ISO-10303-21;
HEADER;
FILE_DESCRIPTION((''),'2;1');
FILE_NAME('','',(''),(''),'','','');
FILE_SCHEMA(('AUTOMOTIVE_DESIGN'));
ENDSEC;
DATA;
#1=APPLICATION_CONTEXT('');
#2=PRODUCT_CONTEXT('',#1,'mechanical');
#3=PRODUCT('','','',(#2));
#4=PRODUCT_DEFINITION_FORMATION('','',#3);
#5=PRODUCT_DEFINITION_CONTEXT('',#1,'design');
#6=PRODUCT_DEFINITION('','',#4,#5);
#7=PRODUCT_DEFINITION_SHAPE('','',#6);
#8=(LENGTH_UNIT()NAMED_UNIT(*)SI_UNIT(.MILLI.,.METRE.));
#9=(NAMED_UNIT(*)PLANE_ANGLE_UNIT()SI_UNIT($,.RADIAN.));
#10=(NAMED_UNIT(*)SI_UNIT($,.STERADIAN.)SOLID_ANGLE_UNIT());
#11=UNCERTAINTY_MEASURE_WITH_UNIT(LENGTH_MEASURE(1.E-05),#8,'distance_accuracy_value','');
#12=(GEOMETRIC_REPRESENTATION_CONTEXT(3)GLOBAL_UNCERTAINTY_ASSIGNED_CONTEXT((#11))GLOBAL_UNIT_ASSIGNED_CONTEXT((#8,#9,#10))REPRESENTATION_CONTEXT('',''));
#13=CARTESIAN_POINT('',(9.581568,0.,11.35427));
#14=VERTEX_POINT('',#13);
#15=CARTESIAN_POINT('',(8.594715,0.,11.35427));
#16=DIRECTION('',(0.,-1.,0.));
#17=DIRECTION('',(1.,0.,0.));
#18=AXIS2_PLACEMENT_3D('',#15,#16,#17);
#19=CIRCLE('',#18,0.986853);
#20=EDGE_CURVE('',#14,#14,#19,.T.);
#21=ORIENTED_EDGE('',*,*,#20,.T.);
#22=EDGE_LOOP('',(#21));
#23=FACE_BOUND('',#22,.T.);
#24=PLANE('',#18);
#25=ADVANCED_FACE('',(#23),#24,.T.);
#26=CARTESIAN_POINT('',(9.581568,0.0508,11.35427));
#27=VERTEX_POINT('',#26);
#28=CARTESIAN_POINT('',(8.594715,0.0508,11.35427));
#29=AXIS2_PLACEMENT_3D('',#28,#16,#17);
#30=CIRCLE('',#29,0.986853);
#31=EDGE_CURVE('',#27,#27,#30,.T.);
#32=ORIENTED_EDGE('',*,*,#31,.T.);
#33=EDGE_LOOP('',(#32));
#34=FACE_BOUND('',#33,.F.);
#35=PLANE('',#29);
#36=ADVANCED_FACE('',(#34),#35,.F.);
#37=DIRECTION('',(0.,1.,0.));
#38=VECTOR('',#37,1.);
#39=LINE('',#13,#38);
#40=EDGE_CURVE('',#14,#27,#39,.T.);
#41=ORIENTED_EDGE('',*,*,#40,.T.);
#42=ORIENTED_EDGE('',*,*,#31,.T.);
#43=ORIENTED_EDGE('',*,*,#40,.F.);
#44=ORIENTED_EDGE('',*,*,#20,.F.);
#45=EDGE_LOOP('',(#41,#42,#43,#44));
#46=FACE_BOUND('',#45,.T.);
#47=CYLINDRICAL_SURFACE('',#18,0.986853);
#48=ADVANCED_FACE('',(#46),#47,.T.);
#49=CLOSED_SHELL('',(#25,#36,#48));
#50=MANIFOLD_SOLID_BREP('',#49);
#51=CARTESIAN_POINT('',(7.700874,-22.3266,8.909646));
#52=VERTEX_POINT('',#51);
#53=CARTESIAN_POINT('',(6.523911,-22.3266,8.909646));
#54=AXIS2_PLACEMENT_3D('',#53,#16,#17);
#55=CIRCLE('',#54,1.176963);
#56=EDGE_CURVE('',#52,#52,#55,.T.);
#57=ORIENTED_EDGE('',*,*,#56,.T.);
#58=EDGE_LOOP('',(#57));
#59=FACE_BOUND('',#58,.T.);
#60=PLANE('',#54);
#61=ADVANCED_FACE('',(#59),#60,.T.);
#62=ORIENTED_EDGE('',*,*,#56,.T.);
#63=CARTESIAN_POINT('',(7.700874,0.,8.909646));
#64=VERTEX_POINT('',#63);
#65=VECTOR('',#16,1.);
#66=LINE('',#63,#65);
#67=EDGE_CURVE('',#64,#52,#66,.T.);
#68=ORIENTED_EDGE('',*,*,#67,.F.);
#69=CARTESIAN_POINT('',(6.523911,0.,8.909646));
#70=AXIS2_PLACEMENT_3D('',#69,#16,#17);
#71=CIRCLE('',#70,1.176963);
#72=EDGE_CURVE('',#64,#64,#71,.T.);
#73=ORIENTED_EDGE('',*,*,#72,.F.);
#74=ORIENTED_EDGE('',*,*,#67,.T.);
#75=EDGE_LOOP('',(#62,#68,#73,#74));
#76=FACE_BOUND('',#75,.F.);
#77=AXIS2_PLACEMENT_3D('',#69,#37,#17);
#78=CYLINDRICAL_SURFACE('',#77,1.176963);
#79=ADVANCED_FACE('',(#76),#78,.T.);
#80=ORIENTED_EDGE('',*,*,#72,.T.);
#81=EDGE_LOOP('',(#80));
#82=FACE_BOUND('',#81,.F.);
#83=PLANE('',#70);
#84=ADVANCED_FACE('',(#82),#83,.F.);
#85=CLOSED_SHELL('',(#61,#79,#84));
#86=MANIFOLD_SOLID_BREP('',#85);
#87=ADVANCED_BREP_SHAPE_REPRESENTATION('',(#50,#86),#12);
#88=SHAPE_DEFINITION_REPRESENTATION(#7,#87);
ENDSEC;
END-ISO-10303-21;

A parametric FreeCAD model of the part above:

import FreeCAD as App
import Part
import Sketcher
from FreeCAD import Vector
Q = App.Units.Quantity

doc = App.newDocument("Part")
body = doc.addObject("PartDesign::Body", "Body")

# Sketch on XZ plane
sketch1 = body.newObject("Sketcher::SketchObject", "Sketch")
sketch1.AttachmentSupport = (doc.getObject("XZ_Plane"), [""])
sketch1.MapMode = "FlatFace"
sketch1.addGeometry(Part.Circle(Vector(6.5, 8.9, 0), Vector(0, 0, 1), 1.2), False)
sketch1.addConstraint(Sketcher.Constraint("Diameter", 0, 2.353926))
sketch1.addConstraint(Sketcher.Constraint("DistanceX", -1, 1, 0, 3, 6.523911))
sketch1.addConstraint(Sketcher.Constraint("DistanceY", -1, 1, 0, 3, 8.909646))
pad1 = body.newObject("PartDesign::Pad", "Pad")
pad1.Profile = sketch1
pad1.Length = Q("0.879 in")
body2 = doc.addObject("PartDesign::Body", "Body001")

# Sketch on XZ plane
sketch2 = body2.newObject("Sketcher::SketchObject", "Sketch001")
sketch2.AttachmentSupport = (doc.getObject("XZ_Plane001"), [""])
sketch2.MapMode = "FlatFace"
sketch2.addGeometry(Part.Circle(Vector(8.6, 11.4, 0), Vector(0, 0, 1), 1), False)
sketch2.addConstraint(Sketcher.Constraint("Diameter", 0, 1.973706))
sketch2.addConstraint(Sketcher.Constraint("DistanceY", -1, 1, 0, 3, 11.35427))
sketch2.addConstraint(Sketcher.Constraint("DistanceX", -1, 1, 0, 3, 8.594715))
pad2 = body2.newObject("PartDesign::Pad", "Pad001")
pad2.Profile = sketch2
pad2.Length = Q("0.002 in")
pad2.Reversed = True

doc.recompute()
